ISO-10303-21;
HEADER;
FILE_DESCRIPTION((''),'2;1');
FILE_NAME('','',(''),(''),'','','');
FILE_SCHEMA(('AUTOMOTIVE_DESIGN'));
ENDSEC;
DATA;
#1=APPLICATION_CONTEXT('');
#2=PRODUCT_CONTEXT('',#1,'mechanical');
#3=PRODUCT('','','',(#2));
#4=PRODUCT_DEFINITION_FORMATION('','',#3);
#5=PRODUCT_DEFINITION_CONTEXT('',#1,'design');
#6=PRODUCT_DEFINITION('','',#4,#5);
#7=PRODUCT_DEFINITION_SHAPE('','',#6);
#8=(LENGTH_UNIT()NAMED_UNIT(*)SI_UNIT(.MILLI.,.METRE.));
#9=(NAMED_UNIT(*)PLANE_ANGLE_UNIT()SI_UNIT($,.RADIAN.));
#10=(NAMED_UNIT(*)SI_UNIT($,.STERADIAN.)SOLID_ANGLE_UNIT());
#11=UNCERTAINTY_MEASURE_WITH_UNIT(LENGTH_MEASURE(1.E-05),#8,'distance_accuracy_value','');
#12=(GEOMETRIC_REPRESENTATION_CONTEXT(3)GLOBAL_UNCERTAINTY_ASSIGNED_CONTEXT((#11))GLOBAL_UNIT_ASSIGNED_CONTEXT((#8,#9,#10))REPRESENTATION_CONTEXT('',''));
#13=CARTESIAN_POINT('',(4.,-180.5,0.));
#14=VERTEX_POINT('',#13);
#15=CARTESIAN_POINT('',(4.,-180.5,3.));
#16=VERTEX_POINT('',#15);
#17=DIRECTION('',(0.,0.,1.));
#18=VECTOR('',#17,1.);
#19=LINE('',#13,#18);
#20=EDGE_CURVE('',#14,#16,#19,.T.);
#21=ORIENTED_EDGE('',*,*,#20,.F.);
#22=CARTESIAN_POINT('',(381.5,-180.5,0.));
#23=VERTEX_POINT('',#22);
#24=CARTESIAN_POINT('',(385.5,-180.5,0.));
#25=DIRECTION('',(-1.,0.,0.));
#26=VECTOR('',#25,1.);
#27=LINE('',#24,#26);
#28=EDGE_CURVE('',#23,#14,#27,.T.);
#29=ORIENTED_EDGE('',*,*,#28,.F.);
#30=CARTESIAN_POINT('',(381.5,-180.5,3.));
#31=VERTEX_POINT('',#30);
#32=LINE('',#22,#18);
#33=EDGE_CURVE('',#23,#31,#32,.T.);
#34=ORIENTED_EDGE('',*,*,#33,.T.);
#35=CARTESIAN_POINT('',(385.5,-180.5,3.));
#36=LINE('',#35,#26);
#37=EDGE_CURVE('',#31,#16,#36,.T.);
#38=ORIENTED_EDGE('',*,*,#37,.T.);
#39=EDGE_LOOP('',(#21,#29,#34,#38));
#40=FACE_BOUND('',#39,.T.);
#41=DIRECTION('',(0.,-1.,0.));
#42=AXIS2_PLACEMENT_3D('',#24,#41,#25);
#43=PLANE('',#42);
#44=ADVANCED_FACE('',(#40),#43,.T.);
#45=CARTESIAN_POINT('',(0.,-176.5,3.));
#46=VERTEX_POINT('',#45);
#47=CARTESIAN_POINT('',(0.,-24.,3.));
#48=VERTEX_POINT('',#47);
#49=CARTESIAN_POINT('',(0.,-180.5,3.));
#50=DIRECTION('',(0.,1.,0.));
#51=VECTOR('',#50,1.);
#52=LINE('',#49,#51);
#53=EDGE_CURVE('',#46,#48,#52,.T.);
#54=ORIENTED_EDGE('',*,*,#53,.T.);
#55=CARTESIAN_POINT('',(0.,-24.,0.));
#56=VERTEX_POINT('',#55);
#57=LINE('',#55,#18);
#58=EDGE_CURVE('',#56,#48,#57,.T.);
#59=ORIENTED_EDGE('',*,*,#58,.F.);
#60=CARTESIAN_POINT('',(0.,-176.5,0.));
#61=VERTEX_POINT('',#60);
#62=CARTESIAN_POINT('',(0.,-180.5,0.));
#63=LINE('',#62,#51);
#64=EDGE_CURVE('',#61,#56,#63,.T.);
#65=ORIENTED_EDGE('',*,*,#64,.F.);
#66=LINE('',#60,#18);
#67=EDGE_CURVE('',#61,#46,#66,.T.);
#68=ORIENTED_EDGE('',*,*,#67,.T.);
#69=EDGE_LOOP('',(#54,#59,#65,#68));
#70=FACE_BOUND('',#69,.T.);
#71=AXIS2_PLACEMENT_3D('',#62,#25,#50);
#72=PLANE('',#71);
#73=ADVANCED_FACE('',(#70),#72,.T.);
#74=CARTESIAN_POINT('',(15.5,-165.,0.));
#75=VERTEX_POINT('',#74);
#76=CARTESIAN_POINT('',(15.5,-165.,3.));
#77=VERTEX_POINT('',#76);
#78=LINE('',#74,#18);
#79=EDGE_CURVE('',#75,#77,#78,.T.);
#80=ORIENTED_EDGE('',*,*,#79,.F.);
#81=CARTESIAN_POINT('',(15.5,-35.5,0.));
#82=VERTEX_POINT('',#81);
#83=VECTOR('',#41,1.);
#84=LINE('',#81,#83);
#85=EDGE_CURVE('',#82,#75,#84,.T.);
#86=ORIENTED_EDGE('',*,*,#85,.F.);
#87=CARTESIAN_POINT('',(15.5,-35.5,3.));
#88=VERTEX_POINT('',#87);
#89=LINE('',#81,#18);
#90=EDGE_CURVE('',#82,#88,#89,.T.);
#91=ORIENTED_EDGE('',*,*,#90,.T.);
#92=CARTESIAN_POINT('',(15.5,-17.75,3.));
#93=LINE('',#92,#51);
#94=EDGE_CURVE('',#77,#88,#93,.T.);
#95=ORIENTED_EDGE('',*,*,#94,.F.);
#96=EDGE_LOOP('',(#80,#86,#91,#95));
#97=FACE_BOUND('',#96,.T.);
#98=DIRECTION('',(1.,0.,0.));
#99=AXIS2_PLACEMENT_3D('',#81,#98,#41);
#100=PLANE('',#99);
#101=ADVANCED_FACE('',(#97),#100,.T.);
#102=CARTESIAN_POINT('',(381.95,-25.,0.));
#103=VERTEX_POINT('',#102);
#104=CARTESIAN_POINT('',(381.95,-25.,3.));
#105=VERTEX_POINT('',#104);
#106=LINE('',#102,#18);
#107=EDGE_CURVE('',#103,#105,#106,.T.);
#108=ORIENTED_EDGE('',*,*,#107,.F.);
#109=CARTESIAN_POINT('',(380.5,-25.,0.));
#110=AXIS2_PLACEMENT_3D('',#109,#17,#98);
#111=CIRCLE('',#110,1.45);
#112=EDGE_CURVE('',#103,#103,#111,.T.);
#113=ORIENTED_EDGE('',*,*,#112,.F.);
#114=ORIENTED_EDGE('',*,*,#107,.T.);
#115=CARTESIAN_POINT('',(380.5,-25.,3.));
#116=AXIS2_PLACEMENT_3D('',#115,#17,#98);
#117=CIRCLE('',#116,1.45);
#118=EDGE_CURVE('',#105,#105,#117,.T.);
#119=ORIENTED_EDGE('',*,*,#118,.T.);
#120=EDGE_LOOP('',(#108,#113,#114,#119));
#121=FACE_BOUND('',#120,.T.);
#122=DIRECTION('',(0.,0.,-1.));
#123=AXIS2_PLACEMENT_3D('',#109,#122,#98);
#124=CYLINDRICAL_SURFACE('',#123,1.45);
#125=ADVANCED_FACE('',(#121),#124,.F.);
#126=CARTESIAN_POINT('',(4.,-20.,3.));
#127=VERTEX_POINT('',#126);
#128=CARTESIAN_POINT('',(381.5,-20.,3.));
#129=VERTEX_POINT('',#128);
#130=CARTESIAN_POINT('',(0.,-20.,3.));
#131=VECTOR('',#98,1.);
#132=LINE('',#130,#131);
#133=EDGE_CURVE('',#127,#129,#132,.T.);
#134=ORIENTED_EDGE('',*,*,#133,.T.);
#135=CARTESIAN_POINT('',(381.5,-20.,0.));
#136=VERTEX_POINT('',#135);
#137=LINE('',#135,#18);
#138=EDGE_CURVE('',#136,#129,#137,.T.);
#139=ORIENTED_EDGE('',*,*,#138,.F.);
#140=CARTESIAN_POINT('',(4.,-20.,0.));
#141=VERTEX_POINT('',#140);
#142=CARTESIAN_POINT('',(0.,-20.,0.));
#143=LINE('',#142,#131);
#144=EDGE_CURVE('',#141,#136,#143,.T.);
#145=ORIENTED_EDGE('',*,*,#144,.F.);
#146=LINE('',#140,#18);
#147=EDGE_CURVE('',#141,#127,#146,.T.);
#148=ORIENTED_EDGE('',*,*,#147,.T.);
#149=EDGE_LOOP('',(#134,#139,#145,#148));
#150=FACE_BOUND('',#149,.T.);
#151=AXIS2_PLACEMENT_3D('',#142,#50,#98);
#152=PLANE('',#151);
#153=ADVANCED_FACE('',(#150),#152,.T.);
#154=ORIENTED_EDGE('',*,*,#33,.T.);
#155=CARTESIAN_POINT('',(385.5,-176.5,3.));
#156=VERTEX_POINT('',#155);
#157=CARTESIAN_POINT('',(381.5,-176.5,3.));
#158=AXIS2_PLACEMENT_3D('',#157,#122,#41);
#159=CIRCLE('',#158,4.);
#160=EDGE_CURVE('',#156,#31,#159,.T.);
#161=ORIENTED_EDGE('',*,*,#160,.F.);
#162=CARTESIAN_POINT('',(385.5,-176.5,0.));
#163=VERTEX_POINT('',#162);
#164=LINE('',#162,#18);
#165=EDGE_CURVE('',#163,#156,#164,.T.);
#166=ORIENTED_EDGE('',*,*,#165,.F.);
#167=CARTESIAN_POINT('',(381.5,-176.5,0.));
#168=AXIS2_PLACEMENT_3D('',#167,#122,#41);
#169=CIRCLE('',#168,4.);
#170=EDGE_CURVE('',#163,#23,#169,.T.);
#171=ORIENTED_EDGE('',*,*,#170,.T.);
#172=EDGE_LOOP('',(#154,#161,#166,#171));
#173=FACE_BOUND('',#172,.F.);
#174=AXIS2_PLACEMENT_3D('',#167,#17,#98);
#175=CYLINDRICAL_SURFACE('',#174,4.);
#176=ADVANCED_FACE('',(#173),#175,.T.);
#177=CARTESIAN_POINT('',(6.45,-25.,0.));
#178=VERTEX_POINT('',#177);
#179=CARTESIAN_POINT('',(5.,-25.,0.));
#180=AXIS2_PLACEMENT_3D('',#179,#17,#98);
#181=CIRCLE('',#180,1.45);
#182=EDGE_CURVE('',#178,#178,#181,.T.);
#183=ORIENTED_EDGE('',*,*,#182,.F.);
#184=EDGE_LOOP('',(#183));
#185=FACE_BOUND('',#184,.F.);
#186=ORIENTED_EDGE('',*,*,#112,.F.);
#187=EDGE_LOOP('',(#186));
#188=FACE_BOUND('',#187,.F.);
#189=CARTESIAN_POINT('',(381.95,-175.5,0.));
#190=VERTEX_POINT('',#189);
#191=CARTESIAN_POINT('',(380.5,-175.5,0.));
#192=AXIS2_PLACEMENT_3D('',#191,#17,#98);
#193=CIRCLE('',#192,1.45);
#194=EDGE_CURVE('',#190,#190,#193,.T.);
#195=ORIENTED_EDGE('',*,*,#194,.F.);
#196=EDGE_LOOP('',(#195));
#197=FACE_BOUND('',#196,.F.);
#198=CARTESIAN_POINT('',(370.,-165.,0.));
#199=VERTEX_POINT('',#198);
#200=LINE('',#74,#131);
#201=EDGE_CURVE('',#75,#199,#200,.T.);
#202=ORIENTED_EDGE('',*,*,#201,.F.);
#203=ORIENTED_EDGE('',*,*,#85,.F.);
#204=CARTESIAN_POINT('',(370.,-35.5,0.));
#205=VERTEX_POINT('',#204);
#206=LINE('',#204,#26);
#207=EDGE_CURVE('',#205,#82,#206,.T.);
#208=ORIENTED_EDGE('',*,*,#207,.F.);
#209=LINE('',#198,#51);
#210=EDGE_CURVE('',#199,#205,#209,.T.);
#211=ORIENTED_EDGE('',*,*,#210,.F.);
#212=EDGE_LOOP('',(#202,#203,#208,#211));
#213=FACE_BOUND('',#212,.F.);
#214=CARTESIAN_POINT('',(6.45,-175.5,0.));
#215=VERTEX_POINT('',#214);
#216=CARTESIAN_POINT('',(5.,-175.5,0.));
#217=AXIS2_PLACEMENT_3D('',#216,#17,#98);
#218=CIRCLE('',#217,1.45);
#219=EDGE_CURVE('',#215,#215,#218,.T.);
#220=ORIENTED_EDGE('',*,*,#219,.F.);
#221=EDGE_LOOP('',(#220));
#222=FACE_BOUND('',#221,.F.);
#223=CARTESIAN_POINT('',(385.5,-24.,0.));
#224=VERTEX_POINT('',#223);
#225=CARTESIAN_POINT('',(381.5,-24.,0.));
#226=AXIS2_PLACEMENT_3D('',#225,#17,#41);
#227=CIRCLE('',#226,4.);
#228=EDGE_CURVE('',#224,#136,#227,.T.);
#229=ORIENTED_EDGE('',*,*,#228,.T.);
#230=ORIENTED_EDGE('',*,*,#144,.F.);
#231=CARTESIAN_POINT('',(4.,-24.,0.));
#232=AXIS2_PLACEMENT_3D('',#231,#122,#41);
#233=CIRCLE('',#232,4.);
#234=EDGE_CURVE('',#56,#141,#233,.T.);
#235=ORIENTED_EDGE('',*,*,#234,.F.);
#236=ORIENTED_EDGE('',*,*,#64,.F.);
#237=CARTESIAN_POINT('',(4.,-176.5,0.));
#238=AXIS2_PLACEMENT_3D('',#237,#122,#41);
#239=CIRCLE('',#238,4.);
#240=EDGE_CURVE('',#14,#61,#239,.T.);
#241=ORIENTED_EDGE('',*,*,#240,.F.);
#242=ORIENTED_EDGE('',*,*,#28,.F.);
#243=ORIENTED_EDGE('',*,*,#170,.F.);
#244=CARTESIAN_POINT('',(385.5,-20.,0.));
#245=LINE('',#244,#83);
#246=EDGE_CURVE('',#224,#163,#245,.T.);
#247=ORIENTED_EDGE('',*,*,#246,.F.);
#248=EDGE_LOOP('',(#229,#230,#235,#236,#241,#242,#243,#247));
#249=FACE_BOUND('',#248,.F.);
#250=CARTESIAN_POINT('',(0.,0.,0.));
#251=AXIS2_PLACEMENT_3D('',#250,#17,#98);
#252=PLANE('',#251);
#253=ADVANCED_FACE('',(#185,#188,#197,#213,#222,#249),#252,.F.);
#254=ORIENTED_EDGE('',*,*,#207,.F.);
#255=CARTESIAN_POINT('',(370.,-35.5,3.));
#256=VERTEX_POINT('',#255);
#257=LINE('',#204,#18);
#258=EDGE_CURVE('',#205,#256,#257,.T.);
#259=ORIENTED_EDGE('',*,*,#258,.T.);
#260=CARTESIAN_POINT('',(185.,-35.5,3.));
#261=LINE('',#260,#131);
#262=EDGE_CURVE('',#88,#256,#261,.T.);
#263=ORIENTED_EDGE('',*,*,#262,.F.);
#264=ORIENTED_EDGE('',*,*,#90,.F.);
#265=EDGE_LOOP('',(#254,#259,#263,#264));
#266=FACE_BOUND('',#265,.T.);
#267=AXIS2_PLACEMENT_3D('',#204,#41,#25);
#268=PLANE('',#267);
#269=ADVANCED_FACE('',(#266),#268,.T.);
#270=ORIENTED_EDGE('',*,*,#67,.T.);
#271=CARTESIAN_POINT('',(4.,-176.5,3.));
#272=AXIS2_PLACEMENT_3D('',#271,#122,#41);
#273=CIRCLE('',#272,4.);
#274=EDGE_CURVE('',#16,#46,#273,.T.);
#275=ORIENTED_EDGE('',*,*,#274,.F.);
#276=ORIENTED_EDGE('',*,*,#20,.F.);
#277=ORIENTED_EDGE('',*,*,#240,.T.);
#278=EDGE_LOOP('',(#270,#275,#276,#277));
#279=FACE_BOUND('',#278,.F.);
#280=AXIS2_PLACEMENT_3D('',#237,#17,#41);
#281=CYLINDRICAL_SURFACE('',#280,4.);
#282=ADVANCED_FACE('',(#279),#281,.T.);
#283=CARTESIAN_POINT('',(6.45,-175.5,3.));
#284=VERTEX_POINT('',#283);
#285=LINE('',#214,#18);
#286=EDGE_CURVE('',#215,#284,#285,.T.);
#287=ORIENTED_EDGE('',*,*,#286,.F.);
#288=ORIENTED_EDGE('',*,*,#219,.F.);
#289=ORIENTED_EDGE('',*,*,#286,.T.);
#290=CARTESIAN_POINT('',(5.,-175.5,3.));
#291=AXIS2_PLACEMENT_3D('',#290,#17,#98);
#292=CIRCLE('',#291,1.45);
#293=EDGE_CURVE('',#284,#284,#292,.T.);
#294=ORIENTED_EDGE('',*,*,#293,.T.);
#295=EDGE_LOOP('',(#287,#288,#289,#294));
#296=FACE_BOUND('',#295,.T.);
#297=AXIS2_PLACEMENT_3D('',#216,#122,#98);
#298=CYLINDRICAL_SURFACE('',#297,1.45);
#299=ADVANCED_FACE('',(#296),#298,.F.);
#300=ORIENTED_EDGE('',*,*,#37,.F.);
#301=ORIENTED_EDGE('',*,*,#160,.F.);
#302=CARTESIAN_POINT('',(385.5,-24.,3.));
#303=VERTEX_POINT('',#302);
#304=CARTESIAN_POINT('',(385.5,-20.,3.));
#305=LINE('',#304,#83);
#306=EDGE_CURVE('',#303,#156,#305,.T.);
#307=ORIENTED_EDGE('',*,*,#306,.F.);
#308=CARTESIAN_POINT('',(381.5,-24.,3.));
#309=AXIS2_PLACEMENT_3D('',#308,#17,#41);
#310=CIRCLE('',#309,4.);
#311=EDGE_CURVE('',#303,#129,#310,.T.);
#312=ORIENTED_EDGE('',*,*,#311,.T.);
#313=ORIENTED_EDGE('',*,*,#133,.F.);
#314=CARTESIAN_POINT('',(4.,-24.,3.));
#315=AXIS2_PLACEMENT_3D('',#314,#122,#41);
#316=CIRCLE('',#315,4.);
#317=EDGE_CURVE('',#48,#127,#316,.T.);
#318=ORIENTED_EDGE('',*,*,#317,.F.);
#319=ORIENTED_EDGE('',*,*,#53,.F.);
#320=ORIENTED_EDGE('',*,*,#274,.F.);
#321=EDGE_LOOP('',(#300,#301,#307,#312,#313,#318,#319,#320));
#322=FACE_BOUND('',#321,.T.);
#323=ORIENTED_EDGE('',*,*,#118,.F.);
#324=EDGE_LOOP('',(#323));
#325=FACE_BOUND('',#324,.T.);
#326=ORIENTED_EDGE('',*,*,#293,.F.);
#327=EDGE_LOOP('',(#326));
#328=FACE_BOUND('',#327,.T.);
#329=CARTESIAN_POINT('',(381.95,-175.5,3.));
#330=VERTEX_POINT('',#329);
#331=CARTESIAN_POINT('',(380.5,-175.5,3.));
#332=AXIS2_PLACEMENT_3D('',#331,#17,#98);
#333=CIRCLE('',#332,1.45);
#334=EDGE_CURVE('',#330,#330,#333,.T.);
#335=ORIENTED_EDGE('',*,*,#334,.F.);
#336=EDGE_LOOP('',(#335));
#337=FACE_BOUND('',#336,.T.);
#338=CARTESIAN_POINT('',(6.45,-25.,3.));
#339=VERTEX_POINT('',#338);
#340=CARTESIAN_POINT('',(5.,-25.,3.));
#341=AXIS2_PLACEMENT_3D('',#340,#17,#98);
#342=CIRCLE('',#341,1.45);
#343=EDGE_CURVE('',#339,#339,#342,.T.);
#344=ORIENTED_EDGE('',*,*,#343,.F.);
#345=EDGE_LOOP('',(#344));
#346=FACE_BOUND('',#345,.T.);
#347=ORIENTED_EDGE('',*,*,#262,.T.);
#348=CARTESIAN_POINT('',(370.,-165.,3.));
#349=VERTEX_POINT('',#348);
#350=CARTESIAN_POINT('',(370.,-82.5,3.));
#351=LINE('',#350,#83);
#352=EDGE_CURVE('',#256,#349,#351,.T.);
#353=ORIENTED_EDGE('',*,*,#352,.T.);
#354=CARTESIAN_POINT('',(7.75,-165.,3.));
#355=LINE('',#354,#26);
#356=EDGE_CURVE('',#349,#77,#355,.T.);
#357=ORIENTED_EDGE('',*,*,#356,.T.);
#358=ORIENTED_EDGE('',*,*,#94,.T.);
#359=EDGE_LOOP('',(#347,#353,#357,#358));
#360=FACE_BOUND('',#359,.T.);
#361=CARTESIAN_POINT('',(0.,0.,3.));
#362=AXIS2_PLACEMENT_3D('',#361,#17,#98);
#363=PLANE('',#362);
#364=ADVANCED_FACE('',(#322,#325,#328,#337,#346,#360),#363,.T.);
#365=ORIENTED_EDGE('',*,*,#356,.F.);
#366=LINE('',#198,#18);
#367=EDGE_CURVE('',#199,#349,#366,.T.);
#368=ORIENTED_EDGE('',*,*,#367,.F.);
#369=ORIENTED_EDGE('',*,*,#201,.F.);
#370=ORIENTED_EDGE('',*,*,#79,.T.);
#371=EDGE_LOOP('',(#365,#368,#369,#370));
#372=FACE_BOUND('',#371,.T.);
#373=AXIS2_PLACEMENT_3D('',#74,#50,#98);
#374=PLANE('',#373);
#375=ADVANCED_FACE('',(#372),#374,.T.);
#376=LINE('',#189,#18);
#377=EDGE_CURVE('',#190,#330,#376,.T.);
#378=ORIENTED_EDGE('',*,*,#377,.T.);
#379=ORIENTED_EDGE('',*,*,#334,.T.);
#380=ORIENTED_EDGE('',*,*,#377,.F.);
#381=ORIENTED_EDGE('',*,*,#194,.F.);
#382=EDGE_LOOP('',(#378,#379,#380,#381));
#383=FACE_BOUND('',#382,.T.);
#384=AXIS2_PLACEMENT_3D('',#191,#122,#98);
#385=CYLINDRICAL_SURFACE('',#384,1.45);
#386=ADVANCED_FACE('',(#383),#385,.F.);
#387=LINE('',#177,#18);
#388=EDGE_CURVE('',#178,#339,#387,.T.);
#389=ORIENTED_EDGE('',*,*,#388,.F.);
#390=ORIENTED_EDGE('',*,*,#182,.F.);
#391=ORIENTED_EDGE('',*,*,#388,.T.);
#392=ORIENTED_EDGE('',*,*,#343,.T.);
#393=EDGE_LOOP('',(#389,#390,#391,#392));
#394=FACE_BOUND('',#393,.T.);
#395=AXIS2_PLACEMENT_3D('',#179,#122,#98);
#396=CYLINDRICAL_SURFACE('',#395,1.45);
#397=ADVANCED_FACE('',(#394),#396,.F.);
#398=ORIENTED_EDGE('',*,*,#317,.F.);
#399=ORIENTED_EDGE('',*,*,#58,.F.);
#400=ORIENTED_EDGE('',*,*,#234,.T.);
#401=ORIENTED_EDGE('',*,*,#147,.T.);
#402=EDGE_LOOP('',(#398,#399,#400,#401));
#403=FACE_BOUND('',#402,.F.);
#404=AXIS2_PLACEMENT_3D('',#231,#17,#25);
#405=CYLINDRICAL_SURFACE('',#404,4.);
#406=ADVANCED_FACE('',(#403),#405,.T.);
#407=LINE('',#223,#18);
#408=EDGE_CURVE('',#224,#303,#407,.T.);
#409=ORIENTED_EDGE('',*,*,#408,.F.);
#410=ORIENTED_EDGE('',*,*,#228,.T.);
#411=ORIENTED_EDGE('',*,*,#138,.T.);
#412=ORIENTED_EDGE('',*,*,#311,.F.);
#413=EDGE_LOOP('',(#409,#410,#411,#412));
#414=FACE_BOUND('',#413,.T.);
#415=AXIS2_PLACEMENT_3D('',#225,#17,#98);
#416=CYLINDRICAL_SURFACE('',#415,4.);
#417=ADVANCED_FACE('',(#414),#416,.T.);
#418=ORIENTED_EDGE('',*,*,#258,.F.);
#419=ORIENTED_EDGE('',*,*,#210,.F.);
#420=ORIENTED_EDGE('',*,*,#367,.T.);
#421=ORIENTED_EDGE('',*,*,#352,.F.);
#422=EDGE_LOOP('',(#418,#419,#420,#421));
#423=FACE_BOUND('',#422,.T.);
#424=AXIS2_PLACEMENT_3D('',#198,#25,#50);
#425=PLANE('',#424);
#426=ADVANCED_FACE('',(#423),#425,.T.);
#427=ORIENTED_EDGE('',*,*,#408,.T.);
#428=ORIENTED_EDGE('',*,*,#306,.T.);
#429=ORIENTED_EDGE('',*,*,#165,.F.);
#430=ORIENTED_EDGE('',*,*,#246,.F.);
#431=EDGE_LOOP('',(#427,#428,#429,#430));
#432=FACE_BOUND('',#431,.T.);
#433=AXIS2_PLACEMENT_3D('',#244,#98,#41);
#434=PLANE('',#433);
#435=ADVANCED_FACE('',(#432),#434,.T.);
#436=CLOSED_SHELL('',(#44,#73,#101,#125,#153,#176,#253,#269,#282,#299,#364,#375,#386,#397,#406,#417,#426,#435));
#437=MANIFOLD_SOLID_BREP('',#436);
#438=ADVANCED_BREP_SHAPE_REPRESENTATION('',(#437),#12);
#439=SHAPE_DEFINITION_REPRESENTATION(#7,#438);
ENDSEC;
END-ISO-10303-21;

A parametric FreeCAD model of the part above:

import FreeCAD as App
import Part
import Sketcher
Q = App.Units.Quantity


def edges_at(feature, points):
    """Names of the edges that pass closest to the given points."""
    edges = feature.Shape.Edges
    near = lambda p: min(range(len(edges)), key=lambda i: edges[i].distToShape(Part.Vertex(*p))[0])
    return sorted({f"Edge{near(p) + 1}" for p in points})

doc = App.newDocument("Part")
body = doc.addObject("PartDesign::Body", "Body")

sketch1 = body.newObject("Sketcher::SketchObject", "Sketch")
sketch1.AttachmentSupport = (doc.getObject("XY_Plane"), [""])
sketch1.MapMode = "FlatFace"
sketch1.addGeometry([
    Part.LineSegment(App.Vector(385.5, -20, 0), App.Vector(0, -20, 0)),
    Part.LineSegment(App.Vector(0, -20, 0), App.Vector(0, -180.5, 0)),
    Part.LineSegment(App.Vector(0, -180.5, 0), App.Vector(385.5, -180.5, 0)),
    Part.LineSegment(App.Vector(385.5, -180.5, 0), App.Vector(385.5, -20, 0)),
    Part.Circle(App.Vector(5, -175.5, 0), App.Vector(0, 0, 1), 1.4),
    Part.Circle(App.Vector(380.5, -175.5, 0), App.Vector(0, 0, 1), 1.4),
    Part.Circle(App.Vector(5, -25, 0), App.Vector(0, 0, 1), 1.4),
    Part.Circle(App.Vector(380.5, -25, 0), App.Vector(0, 0, 1), 1.4),
], False)
sketch1.addConstraint([
    Sketcher.Constraint("Coincident", 0, 2, 1, 1),
    Sketcher.Constraint("Coincident", 1, 2, 2, 1),
    Sketcher.Constraint("Coincident", 2, 2, 3, 1),
    Sketcher.Constraint("Coincident", 3, 2, 0, 1),
    Sketcher.Constraint("Horizontal", 0),
    Sketcher.Constraint("Vertical", 1),
    Sketcher.Constraint("Horizontal", 2),
    Sketcher.Constraint("Vertical", 3),
    Sketcher.Constraint("Equal", 4, 5),
    Sketcher.Constraint("Equal", 5, 6),
    Sketcher.Constraint("Equal", 6, 7),
    Sketcher.Constraint("PointOnObject", 0, 2, -2),
    Sketcher.Constraint("Horizontal", 4, 3, 5, 3),
    Sketcher.Constraint("Horizontal", 6, 3, 7, 3),
    Sketcher.Constraint("Vertical", 4, 3, 6, 3),
    Sketcher.Constraint("Vertical", 5, 3, 7, 3),
    Sketcher.Constraint("Diameter", 4, Q("2.9 mm")),
    Sketcher.Constraint("DistanceX", 0, 2, 0, 1, Q("385.5 mm")),
    Sketcher.Constraint("DistanceY", 1, 2, 1, 1, Q("160.5 mm")),
    Sketcher.Constraint("DistanceX", -1, 1, 4, 3, Q("5 mm")),
    Sketcher.Constraint("DistanceY", 6, 3, 0, 2, Q("5 mm")),
    Sketcher.Constraint("DistanceY", 1, 2, 4, 3, Q("5 mm")),
    Sketcher.Constraint("DistanceX", 5, 3, 2, 2, Q("5 mm")),
    Sketcher.Constraint("DistanceY", 6, 3, -1, 1, Q("25 mm")),
])
pad1 = body.newObject("PartDesign::Pad", "Pad")
pad1.Profile = sketch1
pad1.Length = 3

sketch2 = body.newObject("Sketcher::SketchObject", "Sketch001")
sketch2.AttachmentSupport = (doc.getObject("XY_Plane"), [""])
sketch2.MapMode = "FlatFace"
sketch2.addGeometry([
    Part.LineSegment(App.Vector(370, -165, 0), App.Vector(16, -165, 0)),
    Part.LineSegment(App.Vector(16, -165, 0), App.Vector(16, -36, 0)),
    Part.LineSegment(App.Vector(16, -36, 0), App.Vector(370, -36, 0)),
    Part.LineSegment(App.Vector(370, -36, 0), App.Vector(370, -165, 0)),
], False)
sketch2.addConstraint([
    Sketcher.Constraint("Coincident", 0, 2, 1, 1),
    Sketcher.Constraint("Coincident", 1, 2, 2, 1),
    Sketcher.Constraint("Coincident", 2, 2, 3, 1),
    Sketcher.Constraint("Coincident", 3, 2, 0, 1),
    Sketcher.Constraint("Horizontal", 0),
    Sketcher.Constraint("Vertical", 1),
    Sketcher.Constraint("Horizontal", 2),
    Sketcher.Constraint("Vertical", 3),
    Sketcher.Constraint("DistanceX", -1, 1, 0, 2, Q("15.5 mm")),
    Sketcher.Constraint("DistanceX", 0, 2, 0, 1, Q("354.5 mm")),
    Sketcher.Constraint("DistanceY", 1, 1, 1, 2, Q("129.5 mm")),
    Sketcher.Constraint("DistanceY", 0, 2, -1, 1, Q("165 mm")),
])
pocket1 = body.newObject("PartDesign::Pocket", "Pocket")
pocket1.Profile = sketch2
pocket1.Length = 150
pocket1.Reversed = True
doc.recompute()

fillet = body.newObject("PartDesign::Fillet", "Fillet")
fillet.Base = (pocket1, edges_at(pocket1, [(385.5, -180.5, 1.5)]))
fillet.Radius = 4
doc.recompute()

fillet2 = body.newObject("PartDesign::Fillet", "Fillet001")
fillet2.Base = (fillet, edges_at(fillet, [(385.5, -20, 1.5)]))
fillet2.Radius = 4
doc.recompute()

fillet3 = body.newObject("PartDesign::Fillet", "Fillet002")
fillet3.Base = (fillet2, edges_at(fillet2, [(0, -180.5, 1.5)]))
fillet3.Radius = 4
doc.recompute()

fillet4 = body.newObject("PartDesign::Fillet", "Fillet003")
fillet4.Base = (fillet3, edges_at(fillet3, [(0, -20, 1.5)]))
fillet4.Radius = 4

doc.recompute()
